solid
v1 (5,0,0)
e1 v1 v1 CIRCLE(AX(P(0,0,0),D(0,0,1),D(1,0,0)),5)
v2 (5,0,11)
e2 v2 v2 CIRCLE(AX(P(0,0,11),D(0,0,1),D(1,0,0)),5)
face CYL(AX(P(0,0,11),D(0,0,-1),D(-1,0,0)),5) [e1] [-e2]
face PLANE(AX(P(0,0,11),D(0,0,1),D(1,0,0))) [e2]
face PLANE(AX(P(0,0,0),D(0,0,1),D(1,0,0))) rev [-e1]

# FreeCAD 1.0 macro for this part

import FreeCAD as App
import Part
import Sketcher
from FreeCAD import Vector
Q = App.Units.Quantity

doc = App.newDocument("Part")
body = doc.addObject("PartDesign::Body", "Body")

# Sketch on XY plane
sketch1 = body.newObject("Sketcher::SketchObject", "Sketch")
sketch1.AttachmentSupport = (doc.getObject("XY_Plane"), [""])
sketch1.MapMode = "FlatFace"
sketch1.addGeometry(Part.Circle(Vector(0, 0, 0), Vector(0, 0, 1), 5), False)
sketch1.addConstraint(Sketcher.Constraint("Coincident", 0, 3, -1, 1))
sketch1.addConstraint(Sketcher.Constraint("Diameter", 0, Q("10 mm")))
pad1 = body.newObject("PartDesign::Pad", "Pad")
pad1.Profile = sketch1
pad1.Length = 11

doc.recompute()
